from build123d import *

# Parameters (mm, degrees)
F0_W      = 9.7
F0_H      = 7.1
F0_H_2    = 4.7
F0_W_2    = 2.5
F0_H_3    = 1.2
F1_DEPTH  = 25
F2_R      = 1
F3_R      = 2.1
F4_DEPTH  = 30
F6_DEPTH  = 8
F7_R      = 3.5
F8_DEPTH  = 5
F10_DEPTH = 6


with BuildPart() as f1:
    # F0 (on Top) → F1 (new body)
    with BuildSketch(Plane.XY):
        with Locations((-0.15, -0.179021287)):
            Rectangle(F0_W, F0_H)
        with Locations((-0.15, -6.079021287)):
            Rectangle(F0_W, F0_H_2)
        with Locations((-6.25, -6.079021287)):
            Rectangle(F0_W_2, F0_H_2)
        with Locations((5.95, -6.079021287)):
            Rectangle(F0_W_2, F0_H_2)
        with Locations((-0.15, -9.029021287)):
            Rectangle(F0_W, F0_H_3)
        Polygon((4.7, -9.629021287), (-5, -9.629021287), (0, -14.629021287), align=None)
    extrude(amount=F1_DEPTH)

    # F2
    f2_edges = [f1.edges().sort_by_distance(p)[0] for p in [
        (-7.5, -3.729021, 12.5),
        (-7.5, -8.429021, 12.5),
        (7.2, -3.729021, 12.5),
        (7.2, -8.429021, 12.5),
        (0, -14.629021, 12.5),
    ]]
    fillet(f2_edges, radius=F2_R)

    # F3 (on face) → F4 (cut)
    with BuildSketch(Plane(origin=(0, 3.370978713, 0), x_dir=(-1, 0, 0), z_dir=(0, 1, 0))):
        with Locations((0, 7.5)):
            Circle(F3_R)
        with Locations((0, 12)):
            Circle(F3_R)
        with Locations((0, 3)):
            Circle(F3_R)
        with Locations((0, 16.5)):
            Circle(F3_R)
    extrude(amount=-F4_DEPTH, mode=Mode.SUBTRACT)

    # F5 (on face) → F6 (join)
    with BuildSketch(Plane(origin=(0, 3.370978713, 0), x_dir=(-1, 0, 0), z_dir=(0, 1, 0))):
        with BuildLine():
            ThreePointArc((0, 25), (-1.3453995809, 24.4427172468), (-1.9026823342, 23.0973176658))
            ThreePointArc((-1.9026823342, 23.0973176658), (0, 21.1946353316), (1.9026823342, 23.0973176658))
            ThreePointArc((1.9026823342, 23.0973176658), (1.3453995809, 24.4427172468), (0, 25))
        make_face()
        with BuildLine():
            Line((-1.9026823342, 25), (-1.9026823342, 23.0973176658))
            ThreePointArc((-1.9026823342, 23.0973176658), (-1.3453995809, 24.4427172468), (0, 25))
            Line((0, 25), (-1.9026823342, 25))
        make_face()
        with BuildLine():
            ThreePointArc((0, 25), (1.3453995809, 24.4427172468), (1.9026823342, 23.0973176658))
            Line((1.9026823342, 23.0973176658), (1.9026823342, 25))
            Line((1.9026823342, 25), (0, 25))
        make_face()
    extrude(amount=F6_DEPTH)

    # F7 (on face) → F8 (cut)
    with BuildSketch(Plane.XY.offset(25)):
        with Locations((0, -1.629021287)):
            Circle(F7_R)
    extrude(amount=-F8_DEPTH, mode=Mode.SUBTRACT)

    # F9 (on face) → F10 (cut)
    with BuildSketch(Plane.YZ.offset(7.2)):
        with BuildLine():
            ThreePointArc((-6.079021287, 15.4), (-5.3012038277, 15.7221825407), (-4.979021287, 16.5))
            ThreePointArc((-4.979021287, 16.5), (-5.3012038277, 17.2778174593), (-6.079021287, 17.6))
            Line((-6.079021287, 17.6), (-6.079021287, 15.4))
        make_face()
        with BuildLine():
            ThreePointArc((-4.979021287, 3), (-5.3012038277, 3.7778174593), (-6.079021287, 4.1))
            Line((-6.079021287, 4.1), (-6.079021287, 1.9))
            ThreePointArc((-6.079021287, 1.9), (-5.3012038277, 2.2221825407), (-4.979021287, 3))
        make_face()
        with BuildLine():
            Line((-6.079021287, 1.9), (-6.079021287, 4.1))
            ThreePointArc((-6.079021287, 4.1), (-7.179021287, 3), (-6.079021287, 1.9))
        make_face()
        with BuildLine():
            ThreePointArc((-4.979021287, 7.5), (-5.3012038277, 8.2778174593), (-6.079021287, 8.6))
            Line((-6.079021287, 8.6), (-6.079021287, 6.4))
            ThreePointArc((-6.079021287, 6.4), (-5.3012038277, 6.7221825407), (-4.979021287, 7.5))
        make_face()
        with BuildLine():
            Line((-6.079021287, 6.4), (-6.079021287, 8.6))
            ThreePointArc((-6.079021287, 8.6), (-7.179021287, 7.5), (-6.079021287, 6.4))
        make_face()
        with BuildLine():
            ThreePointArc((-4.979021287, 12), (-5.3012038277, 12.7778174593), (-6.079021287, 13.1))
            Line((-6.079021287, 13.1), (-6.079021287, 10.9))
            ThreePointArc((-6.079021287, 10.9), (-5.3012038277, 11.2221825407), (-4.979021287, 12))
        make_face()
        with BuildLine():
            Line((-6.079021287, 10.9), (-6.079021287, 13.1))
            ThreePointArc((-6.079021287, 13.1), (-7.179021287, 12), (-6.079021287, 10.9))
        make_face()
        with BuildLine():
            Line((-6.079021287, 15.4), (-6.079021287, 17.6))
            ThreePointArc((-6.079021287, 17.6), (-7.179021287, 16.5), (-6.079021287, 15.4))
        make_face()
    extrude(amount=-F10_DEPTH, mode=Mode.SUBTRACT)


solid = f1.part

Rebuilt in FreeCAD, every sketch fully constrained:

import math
import FreeCAD as App
import Part
import Sketcher
from FreeCAD import Vector
Q = App.Units.Quantity


def edges_at(feature, points):
    """Names of the edges that pass closest to the given points."""
    edges = feature.Shape.Edges
    near = lambda p: min(range(len(edges)), key=lambda i: edges[i].distToShape(Part.Vertex(*p))[0])
    return sorted({f"Edge{near(p) + 1}" for p in points})

doc = App.newDocument("Part")
body = doc.addObject("PartDesign::Body", "Body")

# Sketch on XY plane
sketch1 = body.newObject("Sketcher::SketchObject", "Sketch")
sketch1.AttachmentSupport = (doc.getObject("XY_Plane"), [""])
sketch1.MapMode = "FlatFace"
sketch1.addGeometry(Part.LineSegment(Vector(-5, 3.4, 0), Vector(-5, -3.7, 0)), False)
sketch1.addGeometry(Part.LineSegment(Vector(-5, -3.7, 0), Vector(-7.5, -3.7, 0)), False)
sketch1.addGeometry(Part.LineSegment(Vector(-7.5, -3.7, 0), Vector(-7.5, -8.4, 0)), False)
sketch1.addGeometry(Part.LineSegment(Vector(-7.5, -8.4, 0), Vector(-5, -8.4, 0)), False)
sketch1.addGeometry(Part.LineSegment(Vector(-5, -8.4, 0), Vector(-5, -9.6, 0)), False)
sketch1.addGeometry(Part.LineSegment(Vector(-5, -9.6, 0), Vector(0, -14.6, 0)), False)
sketch1.addGeometry(Part.LineSegment(Vector(0, -14.6, 0), Vector(4.7, -9.6, 0)), False)
sketch1.addGeometry(Part.LineSegment(Vector(4.7, -9.6, 0), Vector(4.7, -8.4, 0)), False)
sketch1.addGeometry(Part.LineSegment(Vector(4.7, -8.4, 0), Vector(7.2, -8.4, 0)), False)
sketch1.addGeometry(Part.LineSegment(Vector(7.2, -8.4, 0), Vector(7.2, -3.7, 0)), False)
sketch1.addGeometry(Part.LineSegment(Vector(7.2, -3.7, 0), Vector(4.7, -3.7, 0)), False)
sketch1.addGeometry(Part.LineSegment(Vector(4.7, -3.7, 0), Vector(4.7, 3.4, 0)), False)
sketch1.addGeometry(Part.LineSegment(Vector(4.7, 3.4, 0), Vector(-5, 3.4, 0)), False)
sketch1.addConstraint(Sketcher.Constraint("Coincident", 0, 2, 1, 1))
sketch1.addConstraint(Sketcher.Constraint("Coincident", 1, 2, 2, 1))
sketch1.addConstraint(Sketcher.Constraint("Coincident", 2, 2, 3, 1))
sketch1.addConstraint(Sketcher.Constraint("Coincident", 3, 2, 4, 1))
sketch1.addConstraint(Sketcher.Constraint("Coincident", 4, 2, 5, 1))
sketch1.addConstraint(Sketcher.Constraint("Coincident", 5, 2, 6, 1))
sketch1.addConstraint(Sketcher.Constraint("Coincident", 6, 2, 7, 1))
sketch1.addConstraint(Sketcher.Constraint("Coincident", 7, 2, 8, 1))
sketch1.addConstraint(Sketcher.Constraint("Coincident", 8, 2, 9, 1))
sketch1.addConstraint(Sketcher.Constraint("Coincident", 9, 2, 10, 1))
sketch1.addConstraint(Sketcher.Constraint("Coincident", 10, 2, 11, 1))
sketch1.addConstraint(Sketcher.Constraint("Coincident", 11, 2, 12, 1))
sketch1.addConstraint(Sketcher.Constraint("Coincident", 12, 2, 0, 1))
sketch1.addConstraint(Sketcher.Constraint("Vertical", 0))
sketch1.addConstraint(Sketcher.Constraint("Horizontal", 1))
sketch1.addConstraint(Sketcher.Constraint("Vertical", 2))
sketch1.addConstraint(Sketcher.Constraint("Horizontal", 3))
sketch1.addConstraint(Sketcher.Constraint("Vertical", 4))
sketch1.addConstraint(Sketcher.Constraint("Vertical", 7))
sketch1.addConstraint(Sketcher.Constraint("Horizontal", 8))
sketch1.addConstraint(Sketcher.Constraint("Vertical", 9))
sketch1.addConstraint(Sketcher.Constraint("Horizontal", 10))
sketch1.addConstraint(Sketcher.Constraint("Vertical", 11))
sketch1.addConstraint(Sketcher.Constraint("Horizontal", 12))
sketch1.addConstraint(Sketcher.Constraint("PointOnObject", 5, 2, -2))
sketch1.addConstraint(Sketcher.Constraint("Horizontal", 4, 2, 6, 2))
sketch1.addConstraint(Sketcher.Constraint("Horizontal", 3, 2, 7, 2))
sketch1.addConstraint(Sketcher.Constraint("Horizontal", 1, 2, 9, 2))
sketch1.addConstraint(Sketcher.Constraint("Vertical", 0, 2, 3, 2))
sketch1.addConstraint(Sketcher.Constraint("Vertical", 7, 2, 10, 2))
sketch1.addConstraint(Sketcher.Constraint("Equal", 3, 8))
sketch1.addConstraint(Sketcher.Constraint("Angle", 5, Q("-45 deg")))
sketch1.addConstraint(Sketcher.Constraint("DistanceX", 1, 2, 1, 1, Q("2.5 mm")))
sketch1.addConstraint(Sketcher.Constraint("DistanceX", 12, 2, 12, 1, Q("9.7 mm")))
sketch1.addConstraint(Sketcher.Constraint("DistanceY", 0, 2, 0, 1, Q("7.1 mm")))
sketch1.addConstraint(Sketcher.Constraint("DistanceY", 2, 2, 2, 1, Q("4.7 mm")))
sketch1.addConstraint(Sketcher.Constraint("DistanceY", 4, 2, 4, 1, Q("1.2 mm")))
sketch1.addConstraint(Sketcher.Constraint("DistanceX", 0, 2, -1, 1, Q("5 mm")))
sketch1.addConstraint(Sketcher.Constraint("DistanceY", 0, 2, -1, 1, Q("3.729021 mm")))
pad1 = body.newObject("PartDesign::Pad", "Pad")
pad1.Profile = sketch1
pad1.Length = 25
doc.recompute()

fillet = body.newObject("PartDesign::Fillet", "Fillet")
fillet.Base = (pad1, edges_at(pad1, [
    (-7.5, -3.729, 12.5),
    (-7.5, -8.429, 12.5),
    (7.2, -3.729, 12.5),
    (7.2, -8.429, 12.5),
    (0, -14.629, 12.5),
]))
fillet.Radius = 1

# Sketch on XZ plane
sketch2 = body.newObject("Sketcher::SketchObject", "Sketch001")
sketch2.AttachmentSupport = (doc.getObject("XZ_Plane"), [""])
sketch2.MapMode = "FlatFace"
sketch2.AttachmentOffset = App.Placement(Vector(0, 0, -3.370979), App.Rotation())
sketch2.addGeometry(Part.Circle(Vector(0, 7.5, 0), Vector(0, 0, 1), 2.1), False)
sketch2.addGeometry(Part.Circle(Vector(0, 12, 0), Vector(0, 0, 1), 2.1), False)
sketch2.addGeometry(Part.Circle(Vector(0, 3, 0), Vector(0, 0, 1), 2.1), False)
sketch2.addGeometry(Part.Circle(Vector(0, 16.5, 0), Vector(0, 0, 1), 2.1), False)
sketch2.addConstraint(Sketcher.Constraint("Equal", 0, 1))
sketch2.addConstraint(Sketcher.Constraint("Equal", 1, 2))
sketch2.addConstraint(Sketcher.Constraint("Equal", 2, 3))
sketch2.addConstraint(Sketcher.Constraint("PointOnObject", 0, 3, -2))
sketch2.addConstraint(Sketcher.Constraint("PointOnObject", 1, 3, -2))
sketch2.addConstraint(Sketcher.Constraint("PointOnObject", 2, 3, -2))
sketch2.addConstraint(Sketcher.Constraint("PointOnObject", 3, 3, -2))
sketch2.addConstraint(Sketcher.Constraint("Diameter", 0, Q("4.2 mm")))
sketch2.addConstraint(Sketcher.Constraint("DistanceY", -1, 1, 1, 3, Q("12 mm")))
sketch2.addConstraint(Sketcher.Constraint("DistanceY", -1, 1, 2, 3, Q("3 mm")))
sketch2.addConstraint(Sketcher.Constraint("DistanceY", 0, 3, 3, 3, Q("9 mm")))
sketch2.addConstraint(Sketcher.Constraint("DistanceY", -1, 1, 0, 3, Q("7.5 mm")))
pocket1 = body.newObject("PartDesign::Pocket", "Pocket")
pocket1.Profile = sketch2
pocket1.Length = 30
pocket1.Reversed = True

# Sketch on XZ plane
sketch3 = body.newObject("Sketcher::SketchObject", "Sketch002")
sketch3.AttachmentSupport = (doc.getObject("XZ_Plane"), [""])
sketch3.MapMode = "FlatFace"
sketch3.AttachmentOffset = App.Placement(Vector(0, 0, -3.370979), App.Rotation())
sketch3.addGeometry(Part.ArcOfCircle(Part.Circle(Vector(0, 23.1, 0), Vector(0, 0, 1), 1.9), math.radians(180), math.radians(360)), False)
sketch3.addGeometry(Part.LineSegment(Vector(-1.9, 23.1, 0), Vector(-1.9, 25, 0)), False)
sketch3.addGeometry(Part.LineSegment(Vector(-1.9, 25, 0), Vector(1.9, 25, 0)), False)
sketch3.addGeometry(Part.LineSegment(Vector(1.9, 25, 0), Vector(1.9, 23.1, 0)), False)
sketch3.addConstraint(Sketcher.Constraint("Tangent", 0, 1, 1, 1))
sketch3.addConstraint(Sketcher.Constraint("Coincident", 1, 2, 2, 1))
sketch3.addConstraint(Sketcher.Constraint("Coincident", 2, 2, 3, 1))
sketch3.addConstraint(Sketcher.Constraint("Tangent", 3, 2, 0, 2))
sketch3.addConstraint(Sketcher.Constraint("Vertical", 1))
sketch3.addConstraint(Sketcher.Constraint("Horizontal", 2))
sketch3.addConstraint(Sketcher.Constraint("Vertical", 3))
sketch3.addConstraint(Sketcher.Constraint("PointOnObject", 0, 3, -2))
sketch3.addConstraint(Sketcher.Constraint("DistanceY", -1, 1, 1, 2, Q("25 mm")))
sketch3.addConstraint(Sketcher.Constraint("Radius", 0, Q("1.902682 mm")))
sketch3.addConstraint(Sketcher.Constraint("DistanceY", 1, 1, 1, 2, Q("1.902682 mm")))
pad2 = body.newObject("PartDesign::Pad", "Pad001")
pad2.Profile = sketch3
pad2.Length = 8
pad2.Reversed = True

# Sketch on XY plane
sketch4 = body.newObject("Sketcher::SketchObject", "Sketch003")
sketch4.AttachmentSupport = (doc.getObject("XY_Plane"), [""])
sketch4.MapMode = "FlatFace"
sketch4.AttachmentOffset = App.Placement(Vector(0, 0, 25), App.Rotation())
sketch4.addGeometry(Part.Circle(Vector(0, -1.6, 0), Vector(0, 0, 1), 3.5), False)
sketch4.addConstraint(Sketcher.Constraint("PointOnObject", 0, 3, -2))
sketch4.addConstraint(Sketcher.Constraint("Diameter", 0, Q("7 mm")))
sketch4.addConstraint(Sketcher.Constraint("DistanceY", 0, 3, -1, 1, Q("1.629021 mm")))
pocket2 = body.newObject("PartDesign::Pocket", "Pocket001")
pocket2.Profile = sketch4
pocket2.Length = 5

# Sketch on YZ plane
sketch5 = body.newObject("Sketcher::SketchObject", "Sketch004")
sketch5.AttachmentSupport = (doc.getObject("YZ_Plane"), [""])
sketch5.MapMode = "FlatFace"
sketch5.AttachmentOffset = App.Placement(Vector(0, 0, 7.2), App.Rotation())
sketch5.addGeometry(Part.ArcOfCircle(Part.Circle(Vector(-6.1, 16.5, 0), Vector(0, 0, 1), 1.1), math.radians(-90), math.radians(0)), False)
sketch5.addGeometry(Part.ArcOfCircle(Part.Circle(Vector(-6.1, 16.5, 0), Vector(0, 0, 1), 1.1), math.radians(0), math.radians(90)), False)
sketch5.addGeometry(Part.ArcOfCircle(Part.Circle(Vector(-6.1, 16.5, 0), Vector(0, 0, 1), 1.1), math.radians(90), math.radians(270)), False)
sketch5.addGeometry(Part.ArcOfCircle(Part.Circle(Vector(-6.1, 3, 0), Vector(0, 0, 1), 1.1), math.radians(0), math.radians(90)), False)
sketch5.addGeometry(Part.ArcOfCircle(Part.Circle(Vector(-6.1, 3, 0), Vector(0, 0, 1), 1.1), math.radians(90), math.radians(270)), False)
sketch5.addGeometry(Part.ArcOfCircle(Part.Circle(Vector(-6.1, 3, 0), Vector(0, 0, 1), 1.1), math.radians(-90), math.radians(0)), False)
sketch5.addGeometry(Part.ArcOfCircle(Part.Circle(Vector(-6.1, 7.5, 0), Vector(0, 0, 1), 1.1), math.radians(0), math.radians(90)), False)
sketch5.addGeometry(Part.ArcOfCircle(Part.Circle(Vector(-6.1, 7.5, 0), Vector(0, 0, 1), 1.1), math.radians(90), math.radians(270)), False)
sketch5.addGeometry(Part.ArcOfCircle(Part.Circle(Vector(-6.1, 7.5, 0), Vector(0, 0, 1), 1.1), math.radians(-90), math.radians(0)), False)
sketch5.addGeometry(Part.ArcOfCircle(Part.Circle(Vector(-6.1, 12, 0), Vector(0, 0, 1), 1.1), math.radians(0), math.radians(90)), False)
sketch5.addGeometry(Part.ArcOfCircle(Part.Circle(Vector(-6.1, 12, 0), Vector(0, 0, 1), 1.1), math.radians(90), math.radians(270)), False)
sketch5.addGeometry(Part.ArcOfCircle(Part.Circle(Vector(-6.1, 12, 0), Vector(0, 0, 1), 1.1), math.radians(-90), math.radians(0)), False)
sketch5.addConstraint(Sketcher.Constraint("Tangent", 0, 2, 1, 1))
sketch5.addConstraint(Sketcher.Constraint("Tangent", 1, 2, 2, 1))
sketch5.addConstraint(Sketcher.Constraint("Tangent", 2, 2, 0, 1))
sketch5.addConstraint(Sketcher.Constraint("Tangent", 3, 2, 4, 1))
sketch5.addConstraint(Sketcher.Constraint("Tangent", 4, 2, 5, 1))
sketch5.addConstraint(Sketcher.Constraint("Tangent", 5, 2, 3, 1))
sketch5.addConstraint(Sketcher.Constraint("Tangent", 6, 2, 7, 1))
sketch5.addConstraint(Sketcher.Constraint("Tangent", 7, 2, 8, 1))
sketch5.addConstraint(Sketcher.Constraint("Tangent", 8, 2, 6, 1))
sketch5.addConstraint(Sketcher.Constraint("Tangent", 9, 2, 10, 1))
sketch5.addConstraint(Sketcher.Constraint("Tangent", 10, 2, 11, 1))
sketch5.addConstraint(Sketcher.Constraint("Tangent", 11, 2, 9, 1))
sketch5.addConstraint(Sketcher.Constraint("Equal", 2, 3))
sketch5.addConstraint(Sketcher.Constraint("Equal", 5, 6))
sketch5.addConstraint(Sketcher.Constraint("Equal", 8, 9))
sketch5.addConstraint(Sketcher.Constraint("Horizontal", 2, 3, 0, 2))
sketch5.addConstraint(Sketcher.Constraint("Horizontal", 4, 3, 5, 2))
sketch5.addConstraint(Sketcher.Constraint("Horizontal", 7, 3, 8, 2))
sketch5.addConstraint(Sketcher.Constraint("Horizontal", 10, 3, 11, 2))
sketch5.addConstraint(Sketcher.Constraint("Vertical", 2, 3, 3, 3))
sketch5.addConstraint(Sketcher.Constraint("Vertical", 5, 3, 6, 3))
sketch5.addConstraint(Sketcher.Constraint("Vertical", 8, 3, 9, 3))
sketch5.addConstraint(Sketcher.Constraint("Vertical", 11, 3, 1, 2))
sketch5.addConstraint(Sketcher.Constraint("Vertical", 1, 2, 2, 2))
sketch5.addConstraint(Sketcher.Constraint("Vertical", 2, 2, 3, 2))
sketch5.addConstraint(Sketcher.Constraint("Vertical", 3, 2, 4, 2))
sketch5.addConstraint(Sketcher.Constraint("Vertical", 4, 2, 6, 2))
sketch5.addConstraint(Sketcher.Constraint("Vertical", 6, 2, 7, 2))
sketch5.addConstraint(Sketcher.Constraint("Vertical", 7, 2, 9, 2))
sketch5.addConstraint(Sketcher.Constraint("Vertical", 9, 2, 10, 2))
sketch5.addConstraint(Sketcher.Constraint("Radius", 0, Q("1.1 mm")))
sketch5.addConstraint(Sketcher.Constraint("DistanceY", -1, 1, 3, 3, Q("3 mm")))
sketch5.addConstraint(Sketcher.Constraint("DistanceY", -1, 1, 9, 3, Q("12 mm")))
sketch5.addConstraint(Sketcher.Constraint("DistanceY", 6, 3, 0, 3, Q("9 mm")))
sketch5.addConstraint(Sketcher.Constraint("DistanceY", -1, 1, 0, 3, Q("16.5 mm")))
sketch5.addConstraint(Sketcher.Constraint("DistanceX", 0, 3, -1, 1, Q("6.079021 mm")))
pocket3 = body.newObject("PartDesign::Pocket", "Pocket002")
pocket3.Profile = sketch5
pocket3.Length = 6

doc.recompute()
